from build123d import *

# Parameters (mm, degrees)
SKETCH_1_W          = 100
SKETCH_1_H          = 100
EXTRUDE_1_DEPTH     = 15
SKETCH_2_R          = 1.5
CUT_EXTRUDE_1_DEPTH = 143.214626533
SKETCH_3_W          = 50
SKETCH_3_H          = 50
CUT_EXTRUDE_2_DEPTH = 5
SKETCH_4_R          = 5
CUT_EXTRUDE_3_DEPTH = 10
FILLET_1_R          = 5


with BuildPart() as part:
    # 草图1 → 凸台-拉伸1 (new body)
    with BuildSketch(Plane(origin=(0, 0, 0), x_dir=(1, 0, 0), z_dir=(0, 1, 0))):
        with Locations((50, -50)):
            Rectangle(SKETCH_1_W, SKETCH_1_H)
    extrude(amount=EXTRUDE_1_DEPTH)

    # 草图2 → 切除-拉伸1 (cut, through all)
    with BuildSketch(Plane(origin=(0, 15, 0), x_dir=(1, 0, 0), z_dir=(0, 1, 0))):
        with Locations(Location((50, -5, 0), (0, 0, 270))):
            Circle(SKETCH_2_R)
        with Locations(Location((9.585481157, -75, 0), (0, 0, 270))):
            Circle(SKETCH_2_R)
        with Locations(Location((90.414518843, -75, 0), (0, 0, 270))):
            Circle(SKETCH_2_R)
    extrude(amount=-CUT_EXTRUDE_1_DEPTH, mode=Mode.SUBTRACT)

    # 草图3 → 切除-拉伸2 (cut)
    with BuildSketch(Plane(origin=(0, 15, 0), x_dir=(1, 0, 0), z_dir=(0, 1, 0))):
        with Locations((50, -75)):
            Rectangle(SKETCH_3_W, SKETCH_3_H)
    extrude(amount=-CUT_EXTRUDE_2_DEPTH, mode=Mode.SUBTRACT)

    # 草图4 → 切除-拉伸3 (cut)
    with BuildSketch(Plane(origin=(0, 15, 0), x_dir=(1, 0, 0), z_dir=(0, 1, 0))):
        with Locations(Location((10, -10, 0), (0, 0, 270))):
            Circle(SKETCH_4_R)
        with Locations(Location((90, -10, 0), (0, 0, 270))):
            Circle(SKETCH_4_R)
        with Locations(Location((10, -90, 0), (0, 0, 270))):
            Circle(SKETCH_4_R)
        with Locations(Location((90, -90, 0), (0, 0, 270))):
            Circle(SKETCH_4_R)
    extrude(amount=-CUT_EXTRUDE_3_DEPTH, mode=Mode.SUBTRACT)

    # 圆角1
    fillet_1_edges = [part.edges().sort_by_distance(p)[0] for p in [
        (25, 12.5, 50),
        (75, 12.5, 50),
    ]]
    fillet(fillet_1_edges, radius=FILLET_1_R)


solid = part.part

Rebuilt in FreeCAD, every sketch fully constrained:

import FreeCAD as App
import Part
import Sketcher

V = App.Vector


def edges_at(feature, points):
    """Names of the edges that pass closest to the given points."""
    edges = feature.Shape.Edges
    near = lambda p: min(range(len(edges)), key=lambda i: edges[i].distToShape(Part.Vertex(*p))[0])
    return sorted({f"Edge{near(p) + 1}" for p in points})


def add_polygon(sketch, points):
    """Adds a closed chain of lines whose ends are joined by coincident constraints."""
    first, n = sketch.GeometryCount, len(points)
    for a, b in zip(points, points[1:] + points[:1]):
        sketch.addGeometry(Part.LineSegment(App.Vector(*a, 0), App.Vector(*b, 0)), False)
    for i in range(n):
        sketch.addConstraint(Sketcher.Constraint("Coincident", first + i, 2, first + (i + 1) % n, 1))

doc = App.newDocument("Part")
params = doc.addObject("Spreadsheet::Sheet", "Params")
for row, (alias, value) in enumerate([
    ("sketch1_width", "100 mm"),
    ("pad1_length", "15 mm"),
    ("sketch2_diameter", "3 mm"),
    ("sketch3_width", "50 mm"),
    ("pocket2_length", "5 mm"),
    ("sketch4_diameter", "10 mm"),
    ("pocket3_length", "10 mm"),
    ("fillet_radius", "5 mm"),
], start=1):
    params.set(f"A{row}", alias)
    params.set(f"B{row}", "=" + value)
    params.setAlias(f"B{row}", alias)

body = doc.addObject("PartDesign::Body", "Body")

# Sketch on XZ plane
sketch1 = body.newObject("Sketcher::SketchObject", "Sketch")
sketch1.AttachmentSupport = (doc.getObject("XZ_Plane"), [""])
sketch1.MapMode = "FlatFace"
add_polygon(sketch1, [(0, 0), (0, 100), (100, 100), (100, 0)])  # lines 0-3
sketch1.addConstraint([
    Sketcher.Constraint("Vertical", 0),
    Sketcher.Constraint("Horizontal", 1),
    Sketcher.Constraint("Vertical", 2),
    Sketcher.Constraint("Horizontal", 3),
    Sketcher.Constraint("Coincident", 3, 2, -1, 1),
    Sketcher.Constraint("Equal", 3, 0),
    Sketcher.Constraint("DistanceX", 1, 1, 1, 2, 100.0),
])
sketch1.setExpression("Constraints[10]", "Params.sketch1_width")
pad1 = body.newObject("PartDesign::Pad", "Pad")
pad1.Profile = sketch1
pad1.setExpression("Length", "Params.pad1_length")
pad1.Reversed = True

# Sketch on XZ plane
sketch2 = body.newObject("Sketcher::SketchObject", "Sketch001")
sketch2.AttachmentSupport = (doc.getObject("XZ_Plane"), [""])
sketch2.MapMode = "FlatFace"
sketch2.AttachmentOffset = App.Placement(V(0, 0, -15), App.Rotation())
sketch2.addGeometry([
    Part.Circle(V(50, 5, 0), V(0, 0, 1), 1.5),
    Part.Circle(V(9.585481, 75, 0), V(0, 0, 1), 1.5),
    Part.Circle(V(90.414519, 75, 0), V(0, 0, 1), 1.5),
], False)
sketch2.addConstraint([
    Sketcher.Constraint("Equal", 0, 1),
    Sketcher.Constraint("Equal", 1, 2),
    Sketcher.Constraint("Horizontal", 1, 3, 2, 3),
    Sketcher.Constraint("Diameter", 0, 3.0),
    Sketcher.Constraint("DistanceX", -1, 1, 0, 3, 50.0),
    Sketcher.Constraint("DistanceY", -1, 1, 0, 3, 5.0),
    Sketcher.Constraint("DistanceY", -1, 1, 1, 3, 75.0),
    Sketcher.Constraint("DistanceX", -1, 1, 1, 3, 9.585481),
    Sketcher.Constraint("DistanceX", -1, 1, 2, 3, 90.414519),
])
sketch2.setExpression("Constraints[3]", "Params.sketch2_diameter")
pocket1 = body.newObject("PartDesign::Pocket", "Pocket")
pocket1.Profile = sketch2
pocket1.Type = "ThroughAll"
pocket1.Reversed = True

# Sketch on XZ plane
sketch3 = body.newObject("Sketcher::SketchObject", "Sketch002")
sketch3.AttachmentSupport = (doc.getObject("XZ_Plane"), [""])
sketch3.MapMode = "FlatFace"
sketch3.AttachmentOffset = App.Placement(V(0, 0, -15), App.Rotation())
add_polygon(sketch3, [(25, 50), (25, 100), (75, 100), (75, 50)])  # lines 0-3
sketch3.addConstraint([
    Sketcher.Constraint("Vertical", 0),
    Sketcher.Constraint("Horizontal", 1),
    Sketcher.Constraint("Vertical", 2),
    Sketcher.Constraint("Horizontal", 3),
    Sketcher.Constraint("Equal", 3, 0),
    Sketcher.Constraint("DistanceX", 1, 1, 1, 2, 50.0),
    Sketcher.Constraint("DistanceX", -1, 1, 0, 2, 25.0),
    Sketcher.Constraint("DistanceY", -1, 1, 0, 2, 100.0),
])
sketch3.setExpression("Constraints[9]", "Params.sketch3_width")
pocket2 = body.newObject("PartDesign::Pocket", "Pocket001")
pocket2.Profile = sketch3
pocket2.setExpression("Length", "Params.pocket2_length")
pocket2.Reversed = True

# Sketch on XZ plane
sketch4 = body.newObject("Sketcher::SketchObject", "Sketch003")
sketch4.AttachmentSupport = (doc.getObject("XZ_Plane"), [""])
sketch4.MapMode = "FlatFace"
sketch4.AttachmentOffset = App.Placement(V(0, 0, -15), App.Rotation())
sketch4.addGeometry([
    Part.Circle(V(10, 10, 0), V(0, 0, 1), 5),
    Part.Circle(V(90, 10, 0), V(0, 0, 1), 5),
    Part.Circle(V(10, 90, 0), V(0, 0, 1), 5),
    Part.Circle(V(90, 90, 0), V(0, 0, 1), 5),
], False)
sketch4.addConstraint([
    Sketcher.Constraint("Equal", 0, 1),
    Sketcher.Constraint("Equal", 1, 2),
    Sketcher.Constraint("Equal", 2, 3),
    Sketcher.Constraint("Horizontal", 0, 3, 1, 3),
    Sketcher.Constraint("Horizontal", 2, 3, 3, 3),
    Sketcher.Constraint("Vertical", 0, 3, 2, 3),
    Sketcher.Constraint("Vertical", 1, 3, 3, 3),
    Sketcher.Constraint("Diameter", 0, 10.0),
    Sketcher.Constraint("DistanceX", -1, 1, 0, 3, 10.0),
    Sketcher.Constraint("DistanceY", -1, 1, 0, 3, 10.0),
    Sketcher.Constraint("DistanceX", -1, 1, 1, 3, 90.0),
    Sketcher.Constraint("DistanceY", -1, 1, 2, 3, 90.0),
])
sketch4.setExpression("Constraints[7]", "Params.sketch4_diameter")
pocket3 = body.newObject("PartDesign::Pocket", "Pocket002")
pocket3.Profile = sketch4
pocket3.setExpression("Length", "Params.pocket3_length")
pocket3.Reversed = True
doc.recompute()

fillet = body.newObject("PartDesign::Fillet", "Fillet")
fillet.Base = (pocket3, edges_at(pocket3, [(25, 12.5, 50), (75, 12.5, 50)]))
fillet.setExpression("Radius", "Params.fillet_radius")

doc.recompute()
